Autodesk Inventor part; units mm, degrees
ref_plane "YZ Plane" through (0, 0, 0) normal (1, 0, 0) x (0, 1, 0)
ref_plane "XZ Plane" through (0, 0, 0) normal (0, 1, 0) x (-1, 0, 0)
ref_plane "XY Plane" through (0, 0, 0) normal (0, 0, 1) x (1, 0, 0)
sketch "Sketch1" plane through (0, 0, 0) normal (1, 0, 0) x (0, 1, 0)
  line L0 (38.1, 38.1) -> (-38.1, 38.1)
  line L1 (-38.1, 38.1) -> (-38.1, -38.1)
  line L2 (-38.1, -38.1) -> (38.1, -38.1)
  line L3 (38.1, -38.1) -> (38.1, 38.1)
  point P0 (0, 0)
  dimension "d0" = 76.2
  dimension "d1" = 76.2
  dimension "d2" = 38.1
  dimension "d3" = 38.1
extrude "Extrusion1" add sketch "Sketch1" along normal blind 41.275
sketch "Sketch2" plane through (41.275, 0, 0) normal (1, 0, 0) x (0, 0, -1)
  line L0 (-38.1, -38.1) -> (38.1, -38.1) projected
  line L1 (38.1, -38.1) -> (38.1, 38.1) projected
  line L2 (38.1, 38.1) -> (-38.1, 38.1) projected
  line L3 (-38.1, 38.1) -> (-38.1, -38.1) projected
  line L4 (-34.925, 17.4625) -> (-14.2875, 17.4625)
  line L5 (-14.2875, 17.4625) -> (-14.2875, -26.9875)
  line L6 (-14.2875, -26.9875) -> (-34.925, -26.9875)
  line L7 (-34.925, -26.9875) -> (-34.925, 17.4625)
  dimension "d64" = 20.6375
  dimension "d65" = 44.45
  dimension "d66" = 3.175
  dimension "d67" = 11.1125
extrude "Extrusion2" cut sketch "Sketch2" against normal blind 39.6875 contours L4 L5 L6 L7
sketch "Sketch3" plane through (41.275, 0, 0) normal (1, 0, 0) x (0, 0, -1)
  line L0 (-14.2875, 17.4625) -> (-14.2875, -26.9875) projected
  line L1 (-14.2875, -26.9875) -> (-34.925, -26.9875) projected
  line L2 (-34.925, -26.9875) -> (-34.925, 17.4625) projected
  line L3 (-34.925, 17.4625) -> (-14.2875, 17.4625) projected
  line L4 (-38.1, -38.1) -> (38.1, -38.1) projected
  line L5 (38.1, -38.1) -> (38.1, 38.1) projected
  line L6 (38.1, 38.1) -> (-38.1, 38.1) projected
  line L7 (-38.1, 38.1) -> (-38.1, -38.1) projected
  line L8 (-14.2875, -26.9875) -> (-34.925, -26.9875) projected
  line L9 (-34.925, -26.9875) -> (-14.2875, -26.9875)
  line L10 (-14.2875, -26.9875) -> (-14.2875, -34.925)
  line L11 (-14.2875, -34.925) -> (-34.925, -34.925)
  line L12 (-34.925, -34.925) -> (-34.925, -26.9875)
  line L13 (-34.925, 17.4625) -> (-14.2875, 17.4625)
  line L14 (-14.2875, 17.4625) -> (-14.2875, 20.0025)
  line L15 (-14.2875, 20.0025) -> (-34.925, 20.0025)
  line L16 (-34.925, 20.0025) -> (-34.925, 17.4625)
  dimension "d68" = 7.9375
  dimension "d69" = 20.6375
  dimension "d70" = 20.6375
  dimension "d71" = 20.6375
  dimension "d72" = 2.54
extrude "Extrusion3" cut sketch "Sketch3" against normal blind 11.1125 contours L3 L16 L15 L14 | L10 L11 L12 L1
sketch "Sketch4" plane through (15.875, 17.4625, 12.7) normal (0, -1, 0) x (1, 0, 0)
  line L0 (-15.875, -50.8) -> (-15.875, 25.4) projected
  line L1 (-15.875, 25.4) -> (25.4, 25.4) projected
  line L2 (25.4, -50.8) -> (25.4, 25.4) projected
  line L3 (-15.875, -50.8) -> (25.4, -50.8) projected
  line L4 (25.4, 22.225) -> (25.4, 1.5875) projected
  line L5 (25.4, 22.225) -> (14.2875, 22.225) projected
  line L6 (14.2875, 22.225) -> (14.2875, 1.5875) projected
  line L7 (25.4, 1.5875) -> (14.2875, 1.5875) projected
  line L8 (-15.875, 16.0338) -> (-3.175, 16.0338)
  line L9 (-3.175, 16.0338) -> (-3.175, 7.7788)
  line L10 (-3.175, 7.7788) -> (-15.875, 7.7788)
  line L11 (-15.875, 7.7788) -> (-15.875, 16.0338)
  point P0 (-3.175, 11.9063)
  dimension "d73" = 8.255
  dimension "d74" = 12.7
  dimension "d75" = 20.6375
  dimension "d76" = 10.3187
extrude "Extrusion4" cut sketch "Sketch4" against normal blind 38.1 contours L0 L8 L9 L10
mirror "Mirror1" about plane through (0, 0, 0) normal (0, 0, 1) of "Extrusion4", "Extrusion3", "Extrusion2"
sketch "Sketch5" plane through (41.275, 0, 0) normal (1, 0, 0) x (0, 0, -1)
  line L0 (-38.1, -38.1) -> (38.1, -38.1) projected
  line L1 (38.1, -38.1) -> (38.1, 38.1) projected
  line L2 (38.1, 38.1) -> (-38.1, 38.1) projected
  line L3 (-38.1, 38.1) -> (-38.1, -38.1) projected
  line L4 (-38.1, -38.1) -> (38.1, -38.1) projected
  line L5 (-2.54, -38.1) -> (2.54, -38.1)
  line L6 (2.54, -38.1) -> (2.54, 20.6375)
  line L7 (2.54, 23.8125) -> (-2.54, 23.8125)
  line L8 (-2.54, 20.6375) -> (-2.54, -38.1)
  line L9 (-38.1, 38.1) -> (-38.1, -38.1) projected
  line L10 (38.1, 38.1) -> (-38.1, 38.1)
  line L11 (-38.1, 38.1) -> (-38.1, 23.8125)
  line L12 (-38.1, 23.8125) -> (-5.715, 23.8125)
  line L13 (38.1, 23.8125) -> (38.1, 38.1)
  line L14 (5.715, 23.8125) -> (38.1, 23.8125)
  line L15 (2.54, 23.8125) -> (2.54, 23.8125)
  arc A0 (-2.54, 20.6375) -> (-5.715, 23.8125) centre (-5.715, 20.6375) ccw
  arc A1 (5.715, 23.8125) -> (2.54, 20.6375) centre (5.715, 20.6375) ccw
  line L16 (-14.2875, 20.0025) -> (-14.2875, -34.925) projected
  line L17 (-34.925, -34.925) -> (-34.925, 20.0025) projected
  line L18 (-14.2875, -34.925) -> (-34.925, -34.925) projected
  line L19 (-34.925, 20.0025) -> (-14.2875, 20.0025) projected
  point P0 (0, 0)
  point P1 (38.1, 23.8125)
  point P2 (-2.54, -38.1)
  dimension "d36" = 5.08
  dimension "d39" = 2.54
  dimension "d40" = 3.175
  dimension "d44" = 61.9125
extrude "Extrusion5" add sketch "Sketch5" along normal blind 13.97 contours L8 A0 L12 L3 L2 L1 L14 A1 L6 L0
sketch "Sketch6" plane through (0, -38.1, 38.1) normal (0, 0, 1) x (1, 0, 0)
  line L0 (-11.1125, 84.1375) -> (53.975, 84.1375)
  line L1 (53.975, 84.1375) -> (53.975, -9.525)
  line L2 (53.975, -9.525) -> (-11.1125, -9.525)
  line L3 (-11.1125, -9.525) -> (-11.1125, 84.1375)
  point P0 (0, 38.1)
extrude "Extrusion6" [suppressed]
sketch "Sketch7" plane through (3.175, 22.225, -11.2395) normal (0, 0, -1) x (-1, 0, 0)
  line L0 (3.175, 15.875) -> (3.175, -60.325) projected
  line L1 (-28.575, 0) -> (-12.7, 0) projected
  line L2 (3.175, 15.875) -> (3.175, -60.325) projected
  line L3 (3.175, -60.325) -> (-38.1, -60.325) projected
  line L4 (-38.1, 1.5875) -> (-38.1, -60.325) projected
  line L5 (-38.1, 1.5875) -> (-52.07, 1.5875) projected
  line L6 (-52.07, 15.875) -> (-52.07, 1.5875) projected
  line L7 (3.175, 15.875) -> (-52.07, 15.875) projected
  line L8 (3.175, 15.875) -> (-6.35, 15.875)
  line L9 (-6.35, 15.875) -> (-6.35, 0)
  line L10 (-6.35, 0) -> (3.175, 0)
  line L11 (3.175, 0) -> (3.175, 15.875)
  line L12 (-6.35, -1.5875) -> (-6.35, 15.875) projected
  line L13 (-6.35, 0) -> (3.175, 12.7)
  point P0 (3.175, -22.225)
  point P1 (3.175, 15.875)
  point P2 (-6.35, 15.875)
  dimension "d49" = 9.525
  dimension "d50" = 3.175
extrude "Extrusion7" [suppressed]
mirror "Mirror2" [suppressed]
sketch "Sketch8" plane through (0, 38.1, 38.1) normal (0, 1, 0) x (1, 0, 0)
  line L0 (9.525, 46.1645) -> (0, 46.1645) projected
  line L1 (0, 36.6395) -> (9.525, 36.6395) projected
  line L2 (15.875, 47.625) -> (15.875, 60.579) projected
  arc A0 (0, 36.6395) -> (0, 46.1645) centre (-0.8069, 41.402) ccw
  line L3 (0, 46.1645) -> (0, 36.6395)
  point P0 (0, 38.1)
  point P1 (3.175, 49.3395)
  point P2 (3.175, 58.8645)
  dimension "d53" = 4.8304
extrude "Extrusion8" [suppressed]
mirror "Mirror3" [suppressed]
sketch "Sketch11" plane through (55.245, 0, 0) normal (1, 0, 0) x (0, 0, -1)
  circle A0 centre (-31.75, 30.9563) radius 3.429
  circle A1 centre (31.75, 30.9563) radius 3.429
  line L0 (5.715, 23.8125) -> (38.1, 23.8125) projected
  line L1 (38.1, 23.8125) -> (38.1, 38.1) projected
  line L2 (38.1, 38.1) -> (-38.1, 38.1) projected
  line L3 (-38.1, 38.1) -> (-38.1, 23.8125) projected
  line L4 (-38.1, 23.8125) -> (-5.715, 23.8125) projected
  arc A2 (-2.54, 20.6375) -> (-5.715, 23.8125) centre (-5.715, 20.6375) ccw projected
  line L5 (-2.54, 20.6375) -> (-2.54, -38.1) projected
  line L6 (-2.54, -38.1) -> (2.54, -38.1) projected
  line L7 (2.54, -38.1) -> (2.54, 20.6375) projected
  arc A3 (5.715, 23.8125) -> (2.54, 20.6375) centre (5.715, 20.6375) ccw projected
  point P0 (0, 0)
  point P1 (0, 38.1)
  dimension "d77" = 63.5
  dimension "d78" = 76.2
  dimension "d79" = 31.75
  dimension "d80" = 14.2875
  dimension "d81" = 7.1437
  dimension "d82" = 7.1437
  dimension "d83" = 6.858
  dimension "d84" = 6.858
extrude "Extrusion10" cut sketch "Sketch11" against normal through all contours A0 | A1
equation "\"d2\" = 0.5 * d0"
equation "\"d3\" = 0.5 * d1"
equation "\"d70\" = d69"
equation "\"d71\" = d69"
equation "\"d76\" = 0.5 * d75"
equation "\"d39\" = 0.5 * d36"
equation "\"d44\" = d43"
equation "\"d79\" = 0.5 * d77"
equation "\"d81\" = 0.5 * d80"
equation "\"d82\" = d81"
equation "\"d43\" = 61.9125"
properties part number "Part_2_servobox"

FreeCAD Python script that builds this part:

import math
import FreeCAD as App
import Part
import Sketcher

V = App.Vector
Q = App.Units.Quantity

doc = App.newDocument("Part")
params = doc.addObject("Spreadsheet::Sheet", "Params")
for row, (alias, value) in enumerate([
    ("sketch1_width", "3 in"),
    ("pad1_length", "1.625 in"),
    ("sketch2_width", "1.75 in"),
    ("sketch2_height", "0.8125 in"),
    ("pocket1_length", "1.5625 in"),
    ("sketch3_width", "0.1 in"),
    ("sketch3_width2", "0.3125 in"),
    ("sketch3_height", "0.8125 in"),
    ("pocket2_length", "0.4375 in"),
    ("sketch4_width", "0.5 in"),
    ("sketch4_height", "0.325 in"),
    ("pocket3_length", "1.5 in"),
    ("sketch5_height", "0.2 in"),
    ("sketch5_radius", "0.125 in"),
    ("sketch5_height2", "3 in"),
    ("pad2_length", "0.55 in"),
    ("sketch6_diameter", "0.27 in"),
], start=1):
    params.set(f"A{row}", alias)
    params.set(f"B{row}", "=" + value)
    params.setAlias(f"B{row}", alias)

body = doc.addObject("PartDesign::Body", "Body")

sketch1 = body.newObject("Sketcher::SketchObject", "Sketch")
sketch1.AttachmentSupport = (doc.getObject("YZ_Plane"), [""])
sketch1.MapMode = "FlatFace"
sketch1.addGeometry([
    Part.LineSegment(V(38, -38, 0), V(38, 38, 0)),
    Part.LineSegment(V(38, 38, 0), V(-38, 38, 0)),
    Part.LineSegment(V(-38, 38, 0), V(-38, -38, 0)),
    Part.LineSegment(V(-38, -38, 0), V(38, -38, 0)),
], False)
sketch1.addConstraint([
    Sketcher.Constraint("Coincident", 0, 2, 1, 1),
    Sketcher.Constraint("Coincident", 1, 2, 2, 1),
    Sketcher.Constraint("Coincident", 2, 2, 3, 1),
    Sketcher.Constraint("Coincident", 3, 2, 0, 1),
    Sketcher.Constraint("Vertical", 0),
    Sketcher.Constraint("Horizontal", 1),
    Sketcher.Constraint("Vertical", 2),
    Sketcher.Constraint("Horizontal", 3),
    Sketcher.Constraint("Symmetric", 0, 2, 2, 2, -1, 1),
    Sketcher.Constraint("Equal", 3, 0),
    Sketcher.Constraint("DistanceX", 1, 2, 1, 1, Q("3 in")),
])
sketch1.setExpression("Constraints[10]", "Params.sketch1_width")
pad1 = body.newObject("PartDesign::Pad", "Pad")
pad1.Profile = sketch1
pad1.setExpression("Length", "Params.pad1_length")

sketch2 = body.newObject("Sketcher::SketchObject", "Sketch001")
sketch2.AttachmentSupport = (doc.getObject("YZ_Plane"), [""])
sketch2.MapMode = "FlatFace"
sketch2.AttachmentOffset = App.Placement(V(0, 0, 1.625 * 25.4), App.Rotation())
sketch2.addGeometry([
    Part.LineSegment(V(17, 14, 0), V(17, 35, 0)),
    Part.LineSegment(V(17, 35, 0), V(-27, 35, 0)),
    Part.LineSegment(V(-27, 35, 0), V(-27, 14, 0)),
    Part.LineSegment(V(-27, 14, 0), V(17, 14, 0)),
], False)
sketch2.addConstraint([
    Sketcher.Constraint("Coincident", 0, 2, 1, 1),
    Sketcher.Constraint("Coincident", 1, 2, 2, 1),
    Sketcher.Constraint("Coincident", 2, 2, 3, 1),
    Sketcher.Constraint("Coincident", 3, 2, 0, 1),
    Sketcher.Constraint("Vertical", 0),
    Sketcher.Constraint("Horizontal", 1),
    Sketcher.Constraint("Vertical", 2),
    Sketcher.Constraint("Horizontal", 3),
    Sketcher.Constraint("DistanceX", 1, 2, 1, 1, Q("1.75 in")),
    Sketcher.Constraint("DistanceY", 0, 1, 0, 2, Q("0.8125 in")),
    Sketcher.Constraint("DistanceX", -1, 1, 0, 2, Q("0.6875 in")),
    Sketcher.Constraint("DistanceY", -1, 1, 0, 2, Q("1.375 in")),
])
sketch2.setExpression("Constraints[8]", "Params.sketch2_width")
sketch2.setExpression("Constraints[9]", "Params.sketch2_height")
pocket1 = body.newObject("PartDesign::Pocket", "Pocket")
pocket1.Profile = sketch2
pocket1.setExpression("Length", "Params.pocket1_length")

sketch3 = body.newObject("Sketcher::SketchObject", "Sketch002")
sketch3.AttachmentSupport = (doc.getObject("YZ_Plane"), [""])
sketch3.MapMode = "FlatFace"
sketch3.AttachmentOffset = App.Placement(V(0, 0, 1.625 * 25.4), App.Rotation())
sketch3.addGeometry([
    Part.LineSegment(V(17.5, 34.9, 0), V(17.5, 14.3, 0)),
    Part.LineSegment(V(17.5, 14.3, 0), V(20, 14.3, 0)),
    Part.LineSegment(V(20, 14.3, 0), V(20, 34.9, 0)),
    Part.LineSegment(V(20, 34.9, 0), V(17.5, 34.9, 0)),
    Part.LineSegment(V(-34.9, 14.3, 0), V(-27, 14.3, 0)),
    Part.LineSegment(V(-27, 14.3, 0), V(-27, 34.9, 0)),
    Part.LineSegment(V(-27, 34.9, 0), V(-34.9, 34.9, 0)),
    Part.LineSegment(V(-34.9, 34.9, 0), V(-34.9, 14.3, 0)),
], False)
sketch3.addConstraint([
    Sketcher.Constraint("Coincident", 0, 2, 1, 1),
    Sketcher.Constraint("Coincident", 1, 2, 2, 1),
    Sketcher.Constraint("Coincident", 2, 2, 3, 1),
    Sketcher.Constraint("Coincident", 3, 2, 0, 1),
    Sketcher.Constraint("Coincident", 4, 2, 5, 1),
    Sketcher.Constraint("Coincident", 5, 2, 6, 1),
    Sketcher.Constraint("Coincident", 6, 2, 7, 1),
    Sketcher.Constraint("Coincident", 7, 2, 4, 1),
    Sketcher.Constraint("Vertical", 0),
    Sketcher.Constraint("Horizontal", 1),
    Sketcher.Constraint("Vertical", 2),
    Sketcher.Constraint("Horizontal", 3),
    Sketcher.Constraint("Horizontal", 4),
    Sketcher.Constraint("Vertical", 5),
    Sketcher.Constraint("Horizontal", 6),
    Sketcher.Constraint("Vertical", 7),
    Sketcher.Constraint("Horizontal", 1, 2, 4, 2),
    Sketcher.Constraint("Horizontal", 3, 2, 5, 2),
    Sketcher.Constraint("DistanceX", 1, 1, 1, 2, Q("0.1 in")),
    Sketcher.Constraint("DistanceX", 4, 1, 4, 2, Q("0.3125 in")),
    Sketcher.Constraint("DistanceY", 0, 2, 0, 1, Q("0.8125 in")),
    Sketcher.Constraint("DistanceX", 4, 2, 0, 2, Q("1.75 in")),
    Sketcher.Constraint("DistanceX", -1, 1, 0, 2, Q("0.6875 in")),
    Sketcher.Constraint("DistanceY", -1, 1, 0, 2, Q("0.5625 in")),
])
sketch3.setExpression("Constraints[18]", "Params.sketch3_width")
sketch3.setExpression("Constraints[19]", "Params.sketch3_width2")
sketch3.setExpression("Constraints[20]", "Params.sketch3_height")
pocket2 = body.newObject("PartDesign::Pocket", "Pocket001")
pocket2.Profile = sketch3
pocket2.setExpression("Length", "Params.pocket2_length")

sketch4 = body.newObject("Sketcher::SketchObject", "Sketch003")
sketch4.AttachmentSupport = (doc.getObject("XZ_Plane"), [""])
sketch4.MapMode = "FlatFace"
sketch4.AttachmentOffset = App.Placement(V(0, 0, -0.6875 * 25.4), App.Rotation())
sketch4.addGeometry([
    Part.LineSegment(V(0, 29, 0), V(0, 20, 0)),
    Part.LineSegment(V(0, 20, 0), V(13, 20, 0)),
    Part.LineSegment(V(13, 20, 0), V(13, 29, 0)),
    Part.LineSegment(V(13, 29, 0), V(0, 29, 0)),
], False)
sketch4.addConstraint([
    Sketcher.Constraint("Coincident", 0, 2, 1, 1),
    Sketcher.Constraint("Coincident", 1, 2, 2, 1),
    Sketcher.Constraint("Coincident", 2, 2, 3, 1),
    Sketcher.Constraint("Coincident", 3, 2, 0, 1),
    Sketcher.Constraint("Vertical", 0),
    Sketcher.Constraint("Horizontal", 1),
    Sketcher.Constraint("Vertical", 2),
    Sketcher.Constraint("Horizontal", 3),
    Sketcher.Constraint("PointOnObject", 0, 2, -2),
    Sketcher.Constraint("DistanceX", 1, 1, 1, 2, Q("0.5 in")),
    Sketcher.Constraint("DistanceY", 0, 2, 0, 1, Q("0.325 in")),
    Sketcher.Constraint("DistanceY", -1, 1, 0, 2, 20.4788),
])
sketch4.setExpression("Constraints[9]", "Params.sketch4_width")
sketch4.setExpression("Constraints[10]", "Params.sketch4_height")
pocket3 = body.newObject("PartDesign::Pocket", "Pocket002")
pocket3.Profile = sketch4
pocket3.setExpression("Length", "Params.pocket3_length")
doc.recompute()

mirrored = body.newObject("PartDesign::Mirrored", "Mirrored")
mirrored.Originals = [pocket3, pocket2, pocket1]
mirrored.MirrorPlane = (doc.getObject("XY_Plane"), [""])
body.Tip = mirrored

sketch5 = body.newObject("Sketcher::SketchObject", "Sketch004")
sketch5.AttachmentSupport = (doc.getObject("YZ_Plane"), [""])
sketch5.MapMode = "FlatFace"
sketch5.AttachmentOffset = App.Placement(V(0, 0, 1.625 * 25.4), App.Rotation())
sketch5.addGeometry([
    Part.LineSegment(V(20.6, 2.5, 0), V(-38.1, 2.5, 0)),
    Part.LineSegment(V(-38.1, 2.5, 0), V(-38.1, -2.5, 0)),
    Part.LineSegment(V(-38.1, -2.5, 0), V(20.6, -2.5, 0)),
    Part.ArcOfCircle(Part.Circle(V(20.6, -5.7, 0), V(0, 0, 1), 3.2), math.radians(0), math.radians(90)),
    Part.LineSegment(V(23.8, -5.7, 0), V(23.8, -38.1, 0)),
    Part.LineSegment(V(23.8, -38.1, 0), V(38.1, -38.1, 0)),
    Part.LineSegment(V(38.1, -38.1, 0), V(38.1, 38.1, 0)),
    Part.LineSegment(V(38.1, 38.1, 0), V(23.8, 38.1, 0)),
    Part.LineSegment(V(23.8, 38.1, 0), V(23.8, 5.7, 0)),
    Part.ArcOfCircle(Part.Circle(V(20.6, 5.7, 0), V(0, 0, 1), 3.2), math.radians(-90), math.radians(0)),
], False)
sketch5.addConstraint([
    Sketcher.Constraint("Coincident", 0, 2, 1, 1),
    Sketcher.Constraint("Coincident", 1, 2, 2, 1),
    Sketcher.Constraint("Tangent", 2, 2, 3, 2),
    Sketcher.Constraint("Tangent", 3, 1, 4, 1),
    Sketcher.Constraint("Coincident", 4, 2, 5, 1),
    Sketcher.Constraint("Coincident", 5, 2, 6, 1),
    Sketcher.Constraint("Coincident", 6, 2, 7, 1),
    Sketcher.Constraint("Coincident", 7, 2, 8, 1),
    Sketcher.Constraint("Tangent", 8, 2, 9, 2),
    Sketcher.Constraint("Tangent", 9, 1, 0, 1),
    Sketcher.Constraint("Horizontal", 0),
    Sketcher.Constraint("Vertical", 1),
    Sketcher.Constraint("Horizontal", 2),
    Sketcher.Constraint("Vertical", 4),
    Sketcher.Constraint("Horizontal", 5),
    Sketcher.Constraint("Vertical", 6),
    Sketcher.Constraint("Horizontal", 7),
    Sketcher.Constraint("Vertical", 8),
    Sketcher.Constraint("Equal", 3, 9),
    Sketcher.Constraint("Symmetric", 3, 3, 9, 3, -1),
    Sketcher.Constraint("Equal", 4, 8),
    Sketcher.Constraint("DistanceY", 1, 2, 1, 1, Q("0.2 in")),
    Sketcher.Constraint("Radius", 3, Q("0.125 in")),
    Sketcher.Constraint("DistanceY", 6, 1, 6, 2, Q("3 in")),
    Sketcher.Constraint("DistanceX", 1, 2, 3, 1, Q("2.4375 in")),
    Sketcher.Constraint("DistanceX", 0, 2, -1, 1, Q("1.5 in")),
    Sketcher.Constraint("DistanceX", -1, 1, 5, 2, Q("1.5 in")),
])
sketch5.setExpression("Constraints[21]", "Params.sketch5_height")
sketch5.setExpression("Constraints[22]", "Params.sketch5_radius")
sketch5.setExpression("Constraints[23]", "Params.sketch5_height2")
pad2 = body.newObject("PartDesign::Pad", "Pad001")
pad2.Profile = sketch5
pad2.setExpression("Length", "Params.pad2_length")

sketch6 = body.newObject("Sketcher::SketchObject", "Sketch005")
sketch6.AttachmentSupport = (doc.getObject("YZ_Plane"), [""])
sketch6.MapMode = "FlatFace"
sketch6.AttachmentOffset = App.Placement(V(0, 0, 2.175 * 25.4), App.Rotation())
sketch6.addGeometry([
    Part.Circle(V(31, 31.8, 0), V(0, 0, 1), 3.4),
    Part.Circle(V(31, -31.8, 0), V(0, 0, 1), 3.4),
], False)
sketch6.addConstraint([
    Sketcher.Constraint("Equal", 0, 1),
    Sketcher.Constraint("Symmetric", 0, 3, 1, 3, -1),
    Sketcher.Constraint("Diameter", 0, Q("0.27 in")),
    Sketcher.Constraint("DistanceY", 1, 3, 0, 3, Q("2.5 in")),
    Sketcher.Constraint("DistanceX", -1, 1, 0, 3, Q("1.218752 in")),
])
sketch6.setExpression("Constraints[2]", "Params.sketch6_diameter")
pocket4 = body.newObject("PartDesign::Pocket", "Pocket003")
pocket4.Profile = sketch6
pocket4.Type = "ThroughAll"

doc.recompute()
